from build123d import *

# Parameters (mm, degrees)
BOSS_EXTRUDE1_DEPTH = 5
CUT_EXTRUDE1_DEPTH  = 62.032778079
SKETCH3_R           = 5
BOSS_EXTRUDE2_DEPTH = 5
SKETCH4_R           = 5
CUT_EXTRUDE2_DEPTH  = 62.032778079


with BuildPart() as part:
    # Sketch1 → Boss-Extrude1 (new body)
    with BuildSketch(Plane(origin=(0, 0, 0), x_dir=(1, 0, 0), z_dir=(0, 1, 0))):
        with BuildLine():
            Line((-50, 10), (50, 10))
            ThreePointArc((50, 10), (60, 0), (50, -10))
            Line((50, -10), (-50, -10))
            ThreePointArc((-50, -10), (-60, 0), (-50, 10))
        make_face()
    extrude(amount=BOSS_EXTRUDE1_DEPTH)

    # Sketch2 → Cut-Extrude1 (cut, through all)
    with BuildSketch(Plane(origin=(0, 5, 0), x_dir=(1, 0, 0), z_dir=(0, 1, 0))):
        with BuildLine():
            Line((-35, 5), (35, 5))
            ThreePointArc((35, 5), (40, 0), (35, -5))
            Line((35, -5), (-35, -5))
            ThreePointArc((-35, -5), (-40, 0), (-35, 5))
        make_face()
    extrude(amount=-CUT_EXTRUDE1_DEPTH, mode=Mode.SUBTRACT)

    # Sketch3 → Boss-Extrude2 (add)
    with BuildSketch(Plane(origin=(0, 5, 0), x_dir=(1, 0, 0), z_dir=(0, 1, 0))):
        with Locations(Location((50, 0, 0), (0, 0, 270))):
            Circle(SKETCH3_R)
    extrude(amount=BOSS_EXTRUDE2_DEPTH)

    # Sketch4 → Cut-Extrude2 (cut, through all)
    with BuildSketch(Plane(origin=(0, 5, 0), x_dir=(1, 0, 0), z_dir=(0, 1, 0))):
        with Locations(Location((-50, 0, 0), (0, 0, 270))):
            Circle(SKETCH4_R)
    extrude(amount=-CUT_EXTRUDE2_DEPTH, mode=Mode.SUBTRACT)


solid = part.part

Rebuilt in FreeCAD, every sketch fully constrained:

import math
import FreeCAD as App
import Part
import Sketcher

V = App.Vector
Q = App.Units.Quantity

doc = App.newDocument("Part")
body = doc.addObject("PartDesign::Body", "Body")

# Sketch on XZ plane
sketch1 = body.newObject("Sketcher::SketchObject", "Sketch")
sketch1.AttachmentSupport = (doc.getObject("XZ_Plane"), [""])
sketch1.MapMode = "FlatFace"
sketch1.addGeometry([
    Part.LineSegment(V(50, -10, 0), V(-50, -10, 0)),
    Part.ArcOfCircle(Part.Circle(V(-50, 0, 0), V(0, 0, 1), 10), math.radians(90), math.radians(270)),
    Part.LineSegment(V(-50, 10, 0), V(50, 10, 0)),
    Part.ArcOfCircle(Part.Circle(V(50, 0, 0), V(0, 0, 1), 10), math.radians(-90), math.radians(90)),
], False)
sketch1.addConstraint([
    Sketcher.Constraint("Tangent", 0, 2, 1, 2),
    Sketcher.Constraint("Tangent", 1, 1, 2, 1),
    Sketcher.Constraint("Tangent", 2, 2, 3, 2),
    Sketcher.Constraint("Tangent", 3, 1, 0, 1),
    Sketcher.Constraint("Horizontal", 0),
    Sketcher.Constraint("Horizontal", 2),
    Sketcher.Constraint("Symmetric", 1, 3, 3, 3, -1, 1),
    Sketcher.Constraint("Radius", 1, Q("10 mm")),
    Sketcher.Constraint("DistanceX", 0, 2, 0, 1, Q("100 mm")),
])
pad1 = body.newObject("PartDesign::Pad", "Pad")
pad1.Profile = sketch1
pad1.Length = 5
pad1.Reversed = True

# Sketch on XZ plane
sketch2 = body.newObject("Sketcher::SketchObject", "Sketch001")
sketch2.AttachmentSupport = (doc.getObject("XZ_Plane"), [""])
sketch2.MapMode = "FlatFace"
sketch2.AttachmentOffset = App.Placement(V(0, 0, -5), App.Rotation())
sketch2.addGeometry([
    Part.LineSegment(V(35, -5, 0), V(-35, -5, 0)),
    Part.ArcOfCircle(Part.Circle(V(-35, 0, 0), V(0, 0, 1), 5), math.radians(90), math.radians(270)),
    Part.LineSegment(V(-35, 5, 0), V(35, 5, 0)),
    Part.ArcOfCircle(Part.Circle(V(35, 0, 0), V(0, 0, 1), 5), math.radians(-90), math.radians(90)),
], False)
sketch2.addConstraint([
    Sketcher.Constraint("Tangent", 0, 2, 1, 2),
    Sketcher.Constraint("Tangent", 1, 1, 2, 1),
    Sketcher.Constraint("Tangent", 2, 2, 3, 2),
    Sketcher.Constraint("Tangent", 3, 1, 0, 1),
    Sketcher.Constraint("Horizontal", 0),
    Sketcher.Constraint("Horizontal", 2),
    Sketcher.Constraint("Symmetric", 1, 3, 3, 3, -1, 1),
    Sketcher.Constraint("Radius", 1, Q("5 mm")),
    Sketcher.Constraint("DistanceX", 0, 2, 0, 1, Q("70 mm")),
])
pocket1 = body.newObject("PartDesign::Pocket", "Pocket")
pocket1.Profile = sketch2
pocket1.Type = "ThroughAll"
pocket1.Reversed = True

# Sketch on XZ plane
sketch3 = body.newObject("Sketcher::SketchObject", "Sketch002")
sketch3.AttachmentSupport = (doc.getObject("XZ_Plane"), [""])
sketch3.MapMode = "FlatFace"
sketch3.AttachmentOffset = App.Placement(V(0, 0, -5), App.Rotation())
sketch3.addGeometry(Part.Circle(V(50, 0, 0), V(0, 0, 1), 5), False)
sketch3.addConstraint([
    Sketcher.Constraint("PointOnObject", 0, 3, -1),
    Sketcher.Constraint("Diameter", 0, Q("10 mm")),
    Sketcher.Constraint("DistanceX", -1, 1, 0, 3, Q("50 mm")),
])
pad2 = body.newObject("PartDesign::Pad", "Pad001")
pad2.Profile = sketch3
pad2.Length = 5
pad2.Reversed = True

# Sketch on XZ plane
sketch4 = body.newObject("Sketcher::SketchObject", "Sketch003")
sketch4.AttachmentSupport = (doc.getObject("XZ_Plane"), [""])
sketch4.MapMode = "FlatFace"
sketch4.AttachmentOffset = App.Placement(V(0, 0, -5), App.Rotation())
sketch4.addGeometry(Part.Circle(V(-50, 0, 0), V(0, 0, 1), 5), False)
sketch4.addConstraint([
    Sketcher.Constraint("PointOnObject", 0, 3, -1),
    Sketcher.Constraint("Diameter", 0, Q("10 mm")),
    Sketcher.Constraint("DistanceX", 0, 3, -1, 1, Q("50 mm")),
])
pocket2 = body.newObject("PartDesign::Pocket", "Pocket001")
pocket2.Profile = sketch4
pocket2.Type = "ThroughAll"
pocket2.Reversed = True

doc.recompute()
